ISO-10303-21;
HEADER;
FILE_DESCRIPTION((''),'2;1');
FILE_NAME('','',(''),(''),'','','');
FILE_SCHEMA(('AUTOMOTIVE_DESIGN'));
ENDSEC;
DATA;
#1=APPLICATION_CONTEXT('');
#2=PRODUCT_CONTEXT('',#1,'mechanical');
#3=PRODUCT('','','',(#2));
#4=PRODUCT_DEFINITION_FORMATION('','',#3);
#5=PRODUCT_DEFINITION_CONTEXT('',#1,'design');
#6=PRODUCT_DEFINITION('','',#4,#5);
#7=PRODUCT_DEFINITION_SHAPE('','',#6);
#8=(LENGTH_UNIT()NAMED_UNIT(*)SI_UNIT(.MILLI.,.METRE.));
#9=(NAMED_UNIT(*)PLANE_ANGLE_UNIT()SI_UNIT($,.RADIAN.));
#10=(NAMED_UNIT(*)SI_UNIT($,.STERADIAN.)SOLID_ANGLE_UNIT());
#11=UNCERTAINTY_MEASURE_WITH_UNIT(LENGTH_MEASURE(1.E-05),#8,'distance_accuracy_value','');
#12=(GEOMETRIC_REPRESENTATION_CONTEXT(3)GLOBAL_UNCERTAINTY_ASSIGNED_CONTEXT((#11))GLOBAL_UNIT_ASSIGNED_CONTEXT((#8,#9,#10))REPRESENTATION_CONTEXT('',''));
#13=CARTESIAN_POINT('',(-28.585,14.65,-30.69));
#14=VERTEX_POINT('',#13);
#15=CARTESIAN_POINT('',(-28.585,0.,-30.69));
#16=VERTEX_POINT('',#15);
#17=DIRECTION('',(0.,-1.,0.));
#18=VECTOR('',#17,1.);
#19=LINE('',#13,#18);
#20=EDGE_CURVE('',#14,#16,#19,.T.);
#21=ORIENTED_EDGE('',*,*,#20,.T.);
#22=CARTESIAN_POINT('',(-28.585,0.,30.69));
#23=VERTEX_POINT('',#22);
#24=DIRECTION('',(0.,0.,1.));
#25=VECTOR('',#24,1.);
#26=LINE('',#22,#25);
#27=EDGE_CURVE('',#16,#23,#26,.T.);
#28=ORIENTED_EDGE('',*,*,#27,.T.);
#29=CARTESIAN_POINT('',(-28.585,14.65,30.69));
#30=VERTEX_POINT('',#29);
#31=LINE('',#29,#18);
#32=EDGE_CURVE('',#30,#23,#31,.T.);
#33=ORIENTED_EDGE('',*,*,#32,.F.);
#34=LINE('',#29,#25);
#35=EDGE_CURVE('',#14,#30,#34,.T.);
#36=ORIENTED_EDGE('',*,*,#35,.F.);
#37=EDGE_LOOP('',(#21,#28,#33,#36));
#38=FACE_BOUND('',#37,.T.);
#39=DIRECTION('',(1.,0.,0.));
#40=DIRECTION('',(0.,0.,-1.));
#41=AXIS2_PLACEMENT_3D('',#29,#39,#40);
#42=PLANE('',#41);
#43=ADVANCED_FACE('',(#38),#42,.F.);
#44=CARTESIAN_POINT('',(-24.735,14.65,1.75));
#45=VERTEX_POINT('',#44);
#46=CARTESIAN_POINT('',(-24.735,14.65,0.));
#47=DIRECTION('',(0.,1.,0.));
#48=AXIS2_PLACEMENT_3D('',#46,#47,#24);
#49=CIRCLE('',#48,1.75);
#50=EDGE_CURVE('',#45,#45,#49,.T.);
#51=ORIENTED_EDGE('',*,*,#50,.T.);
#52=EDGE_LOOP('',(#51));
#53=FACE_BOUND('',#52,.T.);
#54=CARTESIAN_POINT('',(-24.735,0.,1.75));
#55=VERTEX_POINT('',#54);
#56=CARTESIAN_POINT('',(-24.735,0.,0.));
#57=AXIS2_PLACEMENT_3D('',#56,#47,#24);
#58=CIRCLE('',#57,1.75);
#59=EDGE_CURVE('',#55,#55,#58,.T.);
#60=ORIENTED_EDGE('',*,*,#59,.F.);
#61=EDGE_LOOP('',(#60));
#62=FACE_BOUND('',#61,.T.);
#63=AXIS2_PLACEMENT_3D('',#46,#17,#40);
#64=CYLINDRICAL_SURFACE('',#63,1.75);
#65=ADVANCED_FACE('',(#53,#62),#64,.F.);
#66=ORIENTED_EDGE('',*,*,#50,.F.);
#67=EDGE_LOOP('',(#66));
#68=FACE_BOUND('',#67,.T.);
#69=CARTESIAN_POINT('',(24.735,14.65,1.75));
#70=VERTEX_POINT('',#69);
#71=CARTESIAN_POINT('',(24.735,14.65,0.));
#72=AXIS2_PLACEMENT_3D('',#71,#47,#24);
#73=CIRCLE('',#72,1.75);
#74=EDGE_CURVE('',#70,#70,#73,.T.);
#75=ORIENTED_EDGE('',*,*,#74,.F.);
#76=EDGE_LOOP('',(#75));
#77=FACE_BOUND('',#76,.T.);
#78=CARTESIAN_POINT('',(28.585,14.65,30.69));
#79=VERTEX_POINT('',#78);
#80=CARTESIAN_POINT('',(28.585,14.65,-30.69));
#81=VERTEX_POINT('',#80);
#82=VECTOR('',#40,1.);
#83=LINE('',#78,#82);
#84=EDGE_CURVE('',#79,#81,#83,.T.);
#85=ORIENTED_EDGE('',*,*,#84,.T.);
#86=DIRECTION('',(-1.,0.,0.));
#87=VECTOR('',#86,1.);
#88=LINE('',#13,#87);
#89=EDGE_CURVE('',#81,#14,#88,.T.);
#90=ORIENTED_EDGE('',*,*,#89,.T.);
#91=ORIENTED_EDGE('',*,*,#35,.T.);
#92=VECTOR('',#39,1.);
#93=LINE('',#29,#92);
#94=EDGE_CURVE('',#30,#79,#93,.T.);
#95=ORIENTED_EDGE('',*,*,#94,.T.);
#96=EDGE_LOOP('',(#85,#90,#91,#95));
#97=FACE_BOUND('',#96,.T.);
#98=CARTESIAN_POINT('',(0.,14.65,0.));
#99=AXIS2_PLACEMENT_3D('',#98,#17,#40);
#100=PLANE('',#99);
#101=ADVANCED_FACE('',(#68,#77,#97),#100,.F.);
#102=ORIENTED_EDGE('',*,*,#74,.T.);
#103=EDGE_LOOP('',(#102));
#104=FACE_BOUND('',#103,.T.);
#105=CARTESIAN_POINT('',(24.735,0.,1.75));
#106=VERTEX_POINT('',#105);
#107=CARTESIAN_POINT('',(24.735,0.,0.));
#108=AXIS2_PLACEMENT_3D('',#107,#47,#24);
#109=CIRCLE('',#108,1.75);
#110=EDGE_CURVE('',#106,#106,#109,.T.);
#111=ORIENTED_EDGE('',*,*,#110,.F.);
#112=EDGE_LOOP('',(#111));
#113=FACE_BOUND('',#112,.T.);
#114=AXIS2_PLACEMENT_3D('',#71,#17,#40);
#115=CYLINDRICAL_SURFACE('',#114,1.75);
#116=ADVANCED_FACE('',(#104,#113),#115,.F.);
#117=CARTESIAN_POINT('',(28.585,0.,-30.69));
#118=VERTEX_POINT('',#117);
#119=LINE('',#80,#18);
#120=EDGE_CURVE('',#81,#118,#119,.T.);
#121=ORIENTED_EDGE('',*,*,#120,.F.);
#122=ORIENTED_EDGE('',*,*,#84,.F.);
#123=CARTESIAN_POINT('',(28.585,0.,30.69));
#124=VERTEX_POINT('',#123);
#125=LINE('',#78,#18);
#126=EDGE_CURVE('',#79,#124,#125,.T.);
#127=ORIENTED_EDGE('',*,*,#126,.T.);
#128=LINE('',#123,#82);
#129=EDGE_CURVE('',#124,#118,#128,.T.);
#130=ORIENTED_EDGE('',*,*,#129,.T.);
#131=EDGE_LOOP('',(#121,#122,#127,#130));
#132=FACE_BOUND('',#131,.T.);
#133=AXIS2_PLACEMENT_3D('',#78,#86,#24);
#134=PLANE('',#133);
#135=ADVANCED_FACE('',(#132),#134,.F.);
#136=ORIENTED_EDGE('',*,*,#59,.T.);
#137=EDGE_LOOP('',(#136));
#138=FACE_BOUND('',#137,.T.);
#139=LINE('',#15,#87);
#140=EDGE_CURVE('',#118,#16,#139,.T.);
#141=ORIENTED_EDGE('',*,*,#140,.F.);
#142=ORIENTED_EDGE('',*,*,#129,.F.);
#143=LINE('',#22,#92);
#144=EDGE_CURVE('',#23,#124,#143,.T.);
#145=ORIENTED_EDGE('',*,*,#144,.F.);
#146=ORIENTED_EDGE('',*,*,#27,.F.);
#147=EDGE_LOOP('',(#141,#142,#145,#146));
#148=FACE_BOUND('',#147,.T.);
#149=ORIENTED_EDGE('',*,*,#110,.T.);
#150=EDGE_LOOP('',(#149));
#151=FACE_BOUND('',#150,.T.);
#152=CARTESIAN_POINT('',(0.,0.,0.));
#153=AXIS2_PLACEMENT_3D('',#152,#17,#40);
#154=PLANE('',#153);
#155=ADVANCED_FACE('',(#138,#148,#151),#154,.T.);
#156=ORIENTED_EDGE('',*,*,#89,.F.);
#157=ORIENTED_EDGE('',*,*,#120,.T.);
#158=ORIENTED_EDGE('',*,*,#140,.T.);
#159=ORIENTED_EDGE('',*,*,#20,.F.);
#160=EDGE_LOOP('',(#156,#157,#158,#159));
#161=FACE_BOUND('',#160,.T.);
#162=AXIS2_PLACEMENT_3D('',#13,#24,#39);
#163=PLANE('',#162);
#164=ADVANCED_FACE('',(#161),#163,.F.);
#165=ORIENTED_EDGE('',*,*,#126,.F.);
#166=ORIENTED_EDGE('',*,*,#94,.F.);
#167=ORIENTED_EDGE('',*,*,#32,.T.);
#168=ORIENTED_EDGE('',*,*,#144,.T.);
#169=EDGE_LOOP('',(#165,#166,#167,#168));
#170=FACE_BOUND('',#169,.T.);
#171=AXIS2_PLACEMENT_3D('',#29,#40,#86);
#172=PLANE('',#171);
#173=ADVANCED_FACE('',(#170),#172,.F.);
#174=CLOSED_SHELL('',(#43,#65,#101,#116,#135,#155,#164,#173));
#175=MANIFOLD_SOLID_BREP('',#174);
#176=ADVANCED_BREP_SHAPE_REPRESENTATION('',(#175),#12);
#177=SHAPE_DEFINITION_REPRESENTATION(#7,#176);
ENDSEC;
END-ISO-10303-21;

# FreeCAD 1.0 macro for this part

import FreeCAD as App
import Part
import Sketcher
from FreeCAD import Vector
Q = App.Units.Quantity


def add_polygon(sketch, points):
    """Adds a closed chain of lines whose ends are joined by coincident constraints."""
    first, n = sketch.GeometryCount, len(points)
    for a, b in zip(points, points[1:] + points[:1]):
        sketch.addGeometry(Part.LineSegment(App.Vector(*a, 0), App.Vector(*b, 0)), False)
    for i in range(n):
        sketch.addConstraint(Sketcher.Constraint("Coincident", first + i, 2, first + (i + 1) % n, 1))

doc = App.newDocument("Part")
params = doc.addObject("Spreadsheet::Sheet", "Params")
for row, (alias, value) in enumerate([
    ("sketch1_diameter", "3.5 mm"),
    ("sketch1_width", "57.17 mm"),
    ("sketch1_height", "61.38 mm"),
    ("pad1_length", "14.65 mm"),
], start=1):
    params.set(f"A{row}", alias)
    params.set(f"B{row}", "=" + value)
    params.setAlias(f"B{row}", alias)

body = doc.addObject("PartDesign::Body", "Body")

# Sketch on XZ plane
sketch1 = body.newObject("Sketcher::SketchObject", "Sketch")
sketch1.AttachmentSupport = (doc.getObject("XZ_Plane"), [""])
sketch1.MapMode = "FlatFace"
add_polygon(sketch1, [(-28.6, -30.7), (-28.6, 30.7), (28.6, 30.7), (28.6, -30.7)])  # lines 0-3
sketch1.addGeometry(Part.Circle(Vector(-24.7, 0, 0), Vector(0, 0, 1), 1.8), False)  # 4
sketch1.addGeometry(Part.Circle(Vector(24.7, 0, 0), Vector(0, 0, 1), 1.8), False)  # 5
sketch1.addConstraint([
    Sketcher.Constraint("Vertical", 0),
    Sketcher.Constraint("Horizontal", 1),
    Sketcher.Constraint("Vertical", 2),
    Sketcher.Constraint("Horizontal", 3),
    Sketcher.Constraint("Equal", 4, 5),
    Sketcher.Constraint("Symmetric", 4, 3, 5, 3, -1, 1),
    Sketcher.Constraint("Symmetric", 0, 2, 2, 2, -1, 1),
    Sketcher.Constraint("PointOnObject", 4, 3, -1),
    Sketcher.Constraint("Diameter", 4, Q("3.5 mm")),
    Sketcher.Constraint("DistanceX", 1, 1, 1, 2, Q("57.17 mm")),
    Sketcher.Constraint("DistanceY", 0, 1, 0, 2, Q("61.38 mm")),
    Sketcher.Constraint("DistanceX", 4, 3, 5, 3, Q("49.47 mm")),
])
sketch1.setExpression("Constraints[12]", "Params.sketch1_diameter")
sketch1.setExpression("Constraints[13]", "Params.sketch1_width")
sketch1.setExpression("Constraints[14]", "Params.sketch1_height")
pad1 = body.newObject("PartDesign::Pad", "Pad")
pad1.Profile = sketch1
pad1.setExpression("Length", "Params.pad1_length")
pad1.Reversed = True

doc.recompute()
